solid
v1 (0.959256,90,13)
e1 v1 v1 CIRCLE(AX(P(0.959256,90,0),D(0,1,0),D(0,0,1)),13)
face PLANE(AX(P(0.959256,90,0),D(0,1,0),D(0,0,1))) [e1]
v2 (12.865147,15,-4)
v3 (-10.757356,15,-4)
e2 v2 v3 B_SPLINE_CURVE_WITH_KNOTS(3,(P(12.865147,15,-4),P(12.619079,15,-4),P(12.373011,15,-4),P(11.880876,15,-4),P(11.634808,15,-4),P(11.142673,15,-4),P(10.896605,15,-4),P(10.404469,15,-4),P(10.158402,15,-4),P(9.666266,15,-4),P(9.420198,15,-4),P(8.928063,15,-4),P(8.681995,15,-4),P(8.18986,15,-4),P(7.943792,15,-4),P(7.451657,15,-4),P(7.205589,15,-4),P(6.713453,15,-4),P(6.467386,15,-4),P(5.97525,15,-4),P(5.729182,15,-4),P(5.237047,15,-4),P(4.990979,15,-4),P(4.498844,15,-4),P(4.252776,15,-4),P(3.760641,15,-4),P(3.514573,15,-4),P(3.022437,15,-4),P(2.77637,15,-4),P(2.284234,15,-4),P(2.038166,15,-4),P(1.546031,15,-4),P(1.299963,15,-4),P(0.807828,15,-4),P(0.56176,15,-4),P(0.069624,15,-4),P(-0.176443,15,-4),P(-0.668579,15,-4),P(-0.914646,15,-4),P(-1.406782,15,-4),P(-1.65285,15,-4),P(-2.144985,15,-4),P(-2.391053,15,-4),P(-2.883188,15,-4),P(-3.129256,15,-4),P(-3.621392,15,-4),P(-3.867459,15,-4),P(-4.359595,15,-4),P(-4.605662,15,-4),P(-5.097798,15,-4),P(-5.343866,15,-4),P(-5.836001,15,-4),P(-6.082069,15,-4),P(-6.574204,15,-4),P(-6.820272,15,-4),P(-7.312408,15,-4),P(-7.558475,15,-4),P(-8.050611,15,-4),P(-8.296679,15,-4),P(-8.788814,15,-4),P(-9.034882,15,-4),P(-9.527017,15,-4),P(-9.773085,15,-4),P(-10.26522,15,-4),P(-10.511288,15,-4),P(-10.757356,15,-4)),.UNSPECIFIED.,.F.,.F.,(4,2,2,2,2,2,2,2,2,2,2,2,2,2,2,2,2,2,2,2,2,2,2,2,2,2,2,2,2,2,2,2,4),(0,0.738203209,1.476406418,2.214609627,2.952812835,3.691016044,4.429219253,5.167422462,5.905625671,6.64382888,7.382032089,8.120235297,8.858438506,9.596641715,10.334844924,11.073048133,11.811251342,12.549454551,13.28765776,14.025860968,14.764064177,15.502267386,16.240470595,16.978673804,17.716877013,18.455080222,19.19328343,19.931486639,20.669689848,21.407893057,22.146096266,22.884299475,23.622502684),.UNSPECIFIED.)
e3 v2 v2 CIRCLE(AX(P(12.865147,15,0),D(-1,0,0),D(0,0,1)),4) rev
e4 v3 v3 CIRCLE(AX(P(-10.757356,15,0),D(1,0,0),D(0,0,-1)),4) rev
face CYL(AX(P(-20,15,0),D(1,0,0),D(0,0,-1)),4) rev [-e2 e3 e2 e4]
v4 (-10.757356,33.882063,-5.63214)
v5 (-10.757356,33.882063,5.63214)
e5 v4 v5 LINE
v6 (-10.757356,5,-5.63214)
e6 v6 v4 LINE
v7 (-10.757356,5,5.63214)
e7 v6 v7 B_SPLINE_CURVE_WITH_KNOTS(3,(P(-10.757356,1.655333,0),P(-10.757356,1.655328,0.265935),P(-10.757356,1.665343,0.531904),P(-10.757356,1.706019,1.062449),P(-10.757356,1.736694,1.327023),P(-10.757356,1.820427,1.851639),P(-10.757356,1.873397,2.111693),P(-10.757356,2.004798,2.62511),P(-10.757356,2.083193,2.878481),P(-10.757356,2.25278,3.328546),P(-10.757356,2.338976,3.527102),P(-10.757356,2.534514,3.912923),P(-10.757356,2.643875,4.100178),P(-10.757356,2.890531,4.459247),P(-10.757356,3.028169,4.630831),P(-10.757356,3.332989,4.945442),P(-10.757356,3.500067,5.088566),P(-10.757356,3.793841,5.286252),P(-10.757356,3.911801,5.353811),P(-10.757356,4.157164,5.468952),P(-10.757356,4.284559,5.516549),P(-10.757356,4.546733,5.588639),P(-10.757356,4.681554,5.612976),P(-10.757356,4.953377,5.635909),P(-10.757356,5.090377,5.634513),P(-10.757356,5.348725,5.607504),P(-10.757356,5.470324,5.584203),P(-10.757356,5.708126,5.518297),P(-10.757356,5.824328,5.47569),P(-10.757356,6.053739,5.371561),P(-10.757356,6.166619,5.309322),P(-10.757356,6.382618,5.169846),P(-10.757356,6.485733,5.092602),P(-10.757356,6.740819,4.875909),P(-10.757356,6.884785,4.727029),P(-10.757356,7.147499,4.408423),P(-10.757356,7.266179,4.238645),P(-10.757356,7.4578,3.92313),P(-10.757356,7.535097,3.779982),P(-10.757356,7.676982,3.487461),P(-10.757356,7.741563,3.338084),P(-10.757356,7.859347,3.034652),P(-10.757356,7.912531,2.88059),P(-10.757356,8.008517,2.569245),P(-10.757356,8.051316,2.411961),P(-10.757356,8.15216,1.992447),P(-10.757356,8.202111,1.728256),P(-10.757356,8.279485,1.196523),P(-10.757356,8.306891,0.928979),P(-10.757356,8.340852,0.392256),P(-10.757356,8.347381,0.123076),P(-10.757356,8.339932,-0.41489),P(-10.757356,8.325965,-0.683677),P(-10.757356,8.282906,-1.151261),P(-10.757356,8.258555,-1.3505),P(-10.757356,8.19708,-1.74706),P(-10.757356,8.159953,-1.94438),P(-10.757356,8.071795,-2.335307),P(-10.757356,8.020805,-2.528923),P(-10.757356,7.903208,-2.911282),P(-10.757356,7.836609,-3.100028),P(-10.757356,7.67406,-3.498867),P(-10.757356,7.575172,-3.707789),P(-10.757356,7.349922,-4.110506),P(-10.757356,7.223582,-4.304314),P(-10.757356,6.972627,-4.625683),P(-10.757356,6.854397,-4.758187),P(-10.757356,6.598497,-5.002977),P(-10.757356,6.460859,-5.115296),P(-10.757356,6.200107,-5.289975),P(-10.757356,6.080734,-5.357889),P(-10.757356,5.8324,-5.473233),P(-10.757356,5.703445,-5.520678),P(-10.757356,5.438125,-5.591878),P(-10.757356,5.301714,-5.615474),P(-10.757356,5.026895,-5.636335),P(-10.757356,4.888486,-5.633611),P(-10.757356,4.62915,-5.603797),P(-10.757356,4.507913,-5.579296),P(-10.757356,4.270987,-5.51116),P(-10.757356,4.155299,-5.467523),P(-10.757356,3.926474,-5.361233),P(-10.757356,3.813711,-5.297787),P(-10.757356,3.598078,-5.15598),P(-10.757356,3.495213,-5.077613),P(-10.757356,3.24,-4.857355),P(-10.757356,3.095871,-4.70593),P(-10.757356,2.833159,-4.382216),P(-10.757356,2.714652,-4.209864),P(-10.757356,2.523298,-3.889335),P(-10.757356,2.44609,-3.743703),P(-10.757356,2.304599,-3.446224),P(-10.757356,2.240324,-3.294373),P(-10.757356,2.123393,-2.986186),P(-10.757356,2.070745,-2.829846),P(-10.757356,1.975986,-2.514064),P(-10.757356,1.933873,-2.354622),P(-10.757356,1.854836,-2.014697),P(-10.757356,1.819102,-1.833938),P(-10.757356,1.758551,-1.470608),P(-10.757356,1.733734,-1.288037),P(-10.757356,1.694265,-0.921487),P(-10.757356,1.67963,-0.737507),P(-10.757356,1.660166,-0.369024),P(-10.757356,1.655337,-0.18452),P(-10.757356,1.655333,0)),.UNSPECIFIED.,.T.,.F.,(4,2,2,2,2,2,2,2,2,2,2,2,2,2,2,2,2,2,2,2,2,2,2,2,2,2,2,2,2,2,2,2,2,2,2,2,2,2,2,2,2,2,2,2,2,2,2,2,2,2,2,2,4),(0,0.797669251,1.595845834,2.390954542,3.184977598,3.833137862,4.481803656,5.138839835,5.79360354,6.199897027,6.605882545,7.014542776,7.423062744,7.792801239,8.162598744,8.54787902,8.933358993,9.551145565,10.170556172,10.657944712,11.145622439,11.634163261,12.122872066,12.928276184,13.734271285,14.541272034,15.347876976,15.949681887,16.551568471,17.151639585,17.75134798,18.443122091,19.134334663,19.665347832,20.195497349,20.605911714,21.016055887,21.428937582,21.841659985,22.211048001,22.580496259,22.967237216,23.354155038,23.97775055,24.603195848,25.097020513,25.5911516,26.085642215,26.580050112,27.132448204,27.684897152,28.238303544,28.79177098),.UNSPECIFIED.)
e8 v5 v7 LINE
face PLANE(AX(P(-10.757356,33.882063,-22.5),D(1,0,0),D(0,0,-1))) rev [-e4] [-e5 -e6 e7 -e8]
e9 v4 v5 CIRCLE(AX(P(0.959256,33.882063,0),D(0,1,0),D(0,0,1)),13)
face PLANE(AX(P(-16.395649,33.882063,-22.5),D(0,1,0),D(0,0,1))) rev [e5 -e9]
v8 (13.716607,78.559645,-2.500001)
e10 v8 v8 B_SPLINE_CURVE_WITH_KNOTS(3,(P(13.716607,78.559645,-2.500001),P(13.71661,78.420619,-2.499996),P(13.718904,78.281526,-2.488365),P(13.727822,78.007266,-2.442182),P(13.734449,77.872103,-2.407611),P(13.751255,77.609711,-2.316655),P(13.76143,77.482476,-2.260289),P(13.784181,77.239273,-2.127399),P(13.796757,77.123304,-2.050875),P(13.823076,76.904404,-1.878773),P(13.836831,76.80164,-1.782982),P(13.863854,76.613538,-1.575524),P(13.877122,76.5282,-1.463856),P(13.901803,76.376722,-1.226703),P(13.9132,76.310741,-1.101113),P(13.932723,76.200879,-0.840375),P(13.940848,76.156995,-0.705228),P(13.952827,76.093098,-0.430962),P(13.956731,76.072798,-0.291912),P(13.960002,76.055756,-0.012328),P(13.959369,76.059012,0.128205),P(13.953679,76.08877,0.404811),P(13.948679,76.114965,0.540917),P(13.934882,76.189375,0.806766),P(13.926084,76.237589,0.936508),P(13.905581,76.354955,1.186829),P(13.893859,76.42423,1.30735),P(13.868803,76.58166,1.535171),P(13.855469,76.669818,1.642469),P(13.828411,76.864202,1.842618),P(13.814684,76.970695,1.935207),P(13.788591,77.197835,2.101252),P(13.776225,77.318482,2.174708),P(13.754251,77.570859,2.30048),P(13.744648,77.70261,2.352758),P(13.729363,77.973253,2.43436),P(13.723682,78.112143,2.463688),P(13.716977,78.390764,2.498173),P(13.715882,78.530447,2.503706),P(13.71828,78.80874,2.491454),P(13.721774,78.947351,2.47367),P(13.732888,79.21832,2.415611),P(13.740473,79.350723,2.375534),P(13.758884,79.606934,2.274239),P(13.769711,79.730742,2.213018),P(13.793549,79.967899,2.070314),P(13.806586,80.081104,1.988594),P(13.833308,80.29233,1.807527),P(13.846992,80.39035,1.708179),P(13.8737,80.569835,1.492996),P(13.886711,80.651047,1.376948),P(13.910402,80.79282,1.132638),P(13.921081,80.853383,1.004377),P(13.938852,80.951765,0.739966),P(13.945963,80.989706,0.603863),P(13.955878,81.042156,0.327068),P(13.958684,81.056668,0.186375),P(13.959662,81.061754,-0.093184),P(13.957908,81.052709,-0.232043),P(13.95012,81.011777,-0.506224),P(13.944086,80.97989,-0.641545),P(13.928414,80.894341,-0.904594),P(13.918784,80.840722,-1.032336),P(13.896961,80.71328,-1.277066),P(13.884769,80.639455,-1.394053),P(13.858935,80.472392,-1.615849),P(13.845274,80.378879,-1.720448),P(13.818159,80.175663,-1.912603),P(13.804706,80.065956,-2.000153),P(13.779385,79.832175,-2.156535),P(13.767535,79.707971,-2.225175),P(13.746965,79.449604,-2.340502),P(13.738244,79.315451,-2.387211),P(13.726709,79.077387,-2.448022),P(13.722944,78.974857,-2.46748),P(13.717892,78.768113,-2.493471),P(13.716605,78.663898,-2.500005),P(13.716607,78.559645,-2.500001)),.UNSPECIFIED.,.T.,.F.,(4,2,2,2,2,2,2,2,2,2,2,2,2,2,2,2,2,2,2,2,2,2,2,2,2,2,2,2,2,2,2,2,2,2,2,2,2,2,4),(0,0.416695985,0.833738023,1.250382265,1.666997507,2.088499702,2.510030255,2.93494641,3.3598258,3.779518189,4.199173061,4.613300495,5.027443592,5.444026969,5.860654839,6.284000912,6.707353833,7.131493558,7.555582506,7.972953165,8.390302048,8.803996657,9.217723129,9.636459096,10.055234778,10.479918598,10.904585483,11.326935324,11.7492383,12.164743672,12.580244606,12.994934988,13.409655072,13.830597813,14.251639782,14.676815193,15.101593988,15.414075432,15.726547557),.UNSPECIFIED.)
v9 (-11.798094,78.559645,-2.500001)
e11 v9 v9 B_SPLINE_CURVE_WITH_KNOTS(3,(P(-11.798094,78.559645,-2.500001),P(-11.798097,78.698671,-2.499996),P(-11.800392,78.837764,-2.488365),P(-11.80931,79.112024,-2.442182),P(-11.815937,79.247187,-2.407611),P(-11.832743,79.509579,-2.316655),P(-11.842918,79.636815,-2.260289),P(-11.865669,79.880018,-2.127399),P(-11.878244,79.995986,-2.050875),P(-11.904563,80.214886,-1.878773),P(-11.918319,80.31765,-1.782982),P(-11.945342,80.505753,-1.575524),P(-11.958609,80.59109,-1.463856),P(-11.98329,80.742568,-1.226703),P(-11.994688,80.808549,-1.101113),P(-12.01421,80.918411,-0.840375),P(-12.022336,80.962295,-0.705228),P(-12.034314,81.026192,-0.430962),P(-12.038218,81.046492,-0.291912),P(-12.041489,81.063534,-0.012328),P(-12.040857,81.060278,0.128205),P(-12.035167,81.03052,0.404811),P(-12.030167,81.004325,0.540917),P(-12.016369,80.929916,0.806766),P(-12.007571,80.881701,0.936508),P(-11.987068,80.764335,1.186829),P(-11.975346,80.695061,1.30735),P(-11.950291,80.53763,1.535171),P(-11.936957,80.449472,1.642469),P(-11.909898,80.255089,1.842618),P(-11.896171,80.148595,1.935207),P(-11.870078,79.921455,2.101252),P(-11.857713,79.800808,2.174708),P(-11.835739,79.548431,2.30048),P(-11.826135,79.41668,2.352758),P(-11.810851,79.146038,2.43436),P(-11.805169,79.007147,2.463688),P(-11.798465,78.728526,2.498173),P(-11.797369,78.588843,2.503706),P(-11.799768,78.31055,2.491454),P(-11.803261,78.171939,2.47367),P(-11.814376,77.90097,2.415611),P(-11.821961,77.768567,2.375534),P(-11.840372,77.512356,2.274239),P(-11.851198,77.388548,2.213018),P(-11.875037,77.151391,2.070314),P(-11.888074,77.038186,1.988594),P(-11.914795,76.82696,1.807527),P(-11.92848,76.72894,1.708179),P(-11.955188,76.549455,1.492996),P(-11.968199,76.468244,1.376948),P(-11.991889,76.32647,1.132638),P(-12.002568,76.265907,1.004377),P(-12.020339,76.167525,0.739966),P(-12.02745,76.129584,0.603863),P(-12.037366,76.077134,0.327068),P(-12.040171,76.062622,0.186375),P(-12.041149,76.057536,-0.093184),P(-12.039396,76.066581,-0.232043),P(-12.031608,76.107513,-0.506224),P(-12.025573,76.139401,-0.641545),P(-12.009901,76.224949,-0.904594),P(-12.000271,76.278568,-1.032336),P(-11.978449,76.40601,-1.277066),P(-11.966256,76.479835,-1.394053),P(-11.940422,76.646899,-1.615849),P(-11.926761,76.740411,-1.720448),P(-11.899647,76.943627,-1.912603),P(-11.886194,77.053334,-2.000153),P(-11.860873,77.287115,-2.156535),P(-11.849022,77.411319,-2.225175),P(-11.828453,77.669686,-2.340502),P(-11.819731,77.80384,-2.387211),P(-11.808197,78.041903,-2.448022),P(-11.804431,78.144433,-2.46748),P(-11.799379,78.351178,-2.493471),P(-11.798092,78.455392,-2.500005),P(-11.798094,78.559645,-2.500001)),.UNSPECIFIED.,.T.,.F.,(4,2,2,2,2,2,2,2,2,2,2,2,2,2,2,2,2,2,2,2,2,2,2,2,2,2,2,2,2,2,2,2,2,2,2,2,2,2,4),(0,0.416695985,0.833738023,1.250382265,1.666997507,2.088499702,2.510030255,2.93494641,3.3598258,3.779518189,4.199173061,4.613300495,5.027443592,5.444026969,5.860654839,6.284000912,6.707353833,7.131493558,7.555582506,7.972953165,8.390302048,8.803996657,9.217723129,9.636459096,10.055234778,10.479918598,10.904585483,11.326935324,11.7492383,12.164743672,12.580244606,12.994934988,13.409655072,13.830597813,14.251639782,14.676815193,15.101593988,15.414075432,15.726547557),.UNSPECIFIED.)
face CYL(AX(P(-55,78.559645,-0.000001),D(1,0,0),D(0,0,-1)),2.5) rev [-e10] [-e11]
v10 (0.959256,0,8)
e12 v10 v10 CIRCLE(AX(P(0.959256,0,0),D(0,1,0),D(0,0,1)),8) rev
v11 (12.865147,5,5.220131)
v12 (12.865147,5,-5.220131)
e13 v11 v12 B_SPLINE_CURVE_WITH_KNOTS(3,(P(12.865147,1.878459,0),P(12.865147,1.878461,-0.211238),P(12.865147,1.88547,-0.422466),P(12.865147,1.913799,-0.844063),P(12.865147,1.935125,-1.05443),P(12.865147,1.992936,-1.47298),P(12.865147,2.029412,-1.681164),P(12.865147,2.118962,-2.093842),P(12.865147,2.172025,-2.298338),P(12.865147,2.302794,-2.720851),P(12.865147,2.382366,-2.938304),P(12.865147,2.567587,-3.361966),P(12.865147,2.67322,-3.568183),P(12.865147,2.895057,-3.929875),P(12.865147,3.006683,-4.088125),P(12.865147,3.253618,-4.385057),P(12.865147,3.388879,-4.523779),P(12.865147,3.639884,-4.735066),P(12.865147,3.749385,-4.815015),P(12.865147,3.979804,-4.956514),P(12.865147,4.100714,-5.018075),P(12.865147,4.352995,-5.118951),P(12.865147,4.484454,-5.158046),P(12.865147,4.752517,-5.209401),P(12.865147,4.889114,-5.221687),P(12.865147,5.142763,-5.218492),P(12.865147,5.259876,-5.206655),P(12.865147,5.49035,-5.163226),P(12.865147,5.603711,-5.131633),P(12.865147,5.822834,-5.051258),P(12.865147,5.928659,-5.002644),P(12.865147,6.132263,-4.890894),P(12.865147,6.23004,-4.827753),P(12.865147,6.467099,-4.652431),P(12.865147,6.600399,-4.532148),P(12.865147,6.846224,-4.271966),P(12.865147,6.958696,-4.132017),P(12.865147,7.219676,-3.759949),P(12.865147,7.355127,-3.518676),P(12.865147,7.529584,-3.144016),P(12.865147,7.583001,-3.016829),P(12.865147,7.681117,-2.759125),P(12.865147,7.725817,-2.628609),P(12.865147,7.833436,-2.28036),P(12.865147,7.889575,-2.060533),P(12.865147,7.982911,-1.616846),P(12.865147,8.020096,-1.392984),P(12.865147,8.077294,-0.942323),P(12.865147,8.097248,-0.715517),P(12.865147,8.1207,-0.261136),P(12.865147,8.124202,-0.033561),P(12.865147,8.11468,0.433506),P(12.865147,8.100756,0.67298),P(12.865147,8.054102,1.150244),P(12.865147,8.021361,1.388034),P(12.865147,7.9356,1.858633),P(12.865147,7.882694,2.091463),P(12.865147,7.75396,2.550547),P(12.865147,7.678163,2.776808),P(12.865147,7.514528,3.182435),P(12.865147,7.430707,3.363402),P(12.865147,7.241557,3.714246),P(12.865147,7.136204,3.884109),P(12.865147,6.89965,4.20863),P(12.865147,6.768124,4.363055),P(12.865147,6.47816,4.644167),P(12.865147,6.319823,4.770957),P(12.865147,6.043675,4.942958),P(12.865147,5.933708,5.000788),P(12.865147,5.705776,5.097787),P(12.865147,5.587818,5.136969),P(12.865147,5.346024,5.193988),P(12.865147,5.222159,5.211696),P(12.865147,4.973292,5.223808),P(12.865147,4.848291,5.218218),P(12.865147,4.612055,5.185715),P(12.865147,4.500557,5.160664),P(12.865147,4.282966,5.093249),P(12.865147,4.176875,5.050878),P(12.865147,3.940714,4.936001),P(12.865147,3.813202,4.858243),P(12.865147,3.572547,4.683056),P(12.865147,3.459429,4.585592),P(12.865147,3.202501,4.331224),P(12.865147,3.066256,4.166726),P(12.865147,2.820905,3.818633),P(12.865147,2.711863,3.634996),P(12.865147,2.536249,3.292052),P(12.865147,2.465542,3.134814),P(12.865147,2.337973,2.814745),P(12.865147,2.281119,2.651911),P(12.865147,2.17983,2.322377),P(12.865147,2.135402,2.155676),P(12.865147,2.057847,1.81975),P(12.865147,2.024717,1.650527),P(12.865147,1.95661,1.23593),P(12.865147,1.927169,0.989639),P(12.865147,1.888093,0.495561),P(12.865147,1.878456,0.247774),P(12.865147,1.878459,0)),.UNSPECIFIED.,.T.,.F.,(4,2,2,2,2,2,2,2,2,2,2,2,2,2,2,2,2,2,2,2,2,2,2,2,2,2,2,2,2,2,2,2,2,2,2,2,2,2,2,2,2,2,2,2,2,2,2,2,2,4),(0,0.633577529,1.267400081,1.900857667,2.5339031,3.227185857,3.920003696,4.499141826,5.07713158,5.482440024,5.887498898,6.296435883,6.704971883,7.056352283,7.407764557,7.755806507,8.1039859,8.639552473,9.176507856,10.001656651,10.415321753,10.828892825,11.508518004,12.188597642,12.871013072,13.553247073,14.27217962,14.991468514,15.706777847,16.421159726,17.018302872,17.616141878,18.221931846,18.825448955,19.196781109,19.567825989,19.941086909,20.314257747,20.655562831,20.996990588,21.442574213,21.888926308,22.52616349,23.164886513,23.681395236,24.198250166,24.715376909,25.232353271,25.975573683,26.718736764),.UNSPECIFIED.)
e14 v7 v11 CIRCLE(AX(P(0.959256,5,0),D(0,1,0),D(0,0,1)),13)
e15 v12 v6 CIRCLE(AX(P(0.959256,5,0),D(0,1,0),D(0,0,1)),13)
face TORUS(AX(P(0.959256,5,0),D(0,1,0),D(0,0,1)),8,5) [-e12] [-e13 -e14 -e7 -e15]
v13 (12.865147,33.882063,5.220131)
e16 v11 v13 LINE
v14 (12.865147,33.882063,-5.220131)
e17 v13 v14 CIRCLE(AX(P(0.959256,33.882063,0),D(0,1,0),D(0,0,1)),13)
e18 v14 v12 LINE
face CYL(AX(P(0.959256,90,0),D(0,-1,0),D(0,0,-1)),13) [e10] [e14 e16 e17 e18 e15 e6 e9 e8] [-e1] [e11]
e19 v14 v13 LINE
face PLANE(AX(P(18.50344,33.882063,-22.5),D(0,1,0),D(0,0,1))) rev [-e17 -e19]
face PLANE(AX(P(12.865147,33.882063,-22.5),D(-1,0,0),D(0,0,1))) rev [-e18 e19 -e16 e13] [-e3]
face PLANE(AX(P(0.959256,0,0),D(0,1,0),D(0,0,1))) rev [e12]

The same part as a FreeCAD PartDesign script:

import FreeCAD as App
import Part
import Sketcher
Q = App.Units.Quantity


def edges_at(feature, points):
    """Names of the edges that pass closest to the given points."""
    edges = feature.Shape.Edges
    near = lambda p: min(range(len(edges)), key=lambda i: edges[i].distToShape(Part.Vertex(*p))[0])
    return sorted({f"Edge{near(p) + 1}" for p in points})

doc = App.newDocument("Part")
body = doc.addObject("PartDesign::Body", "Body")

sketch1 = body.newObject("Sketcher::SketchObject", "Sketch")
sketch1.AttachmentSupport = (doc.getObject("XZ_Plane"), [""])
sketch1.MapMode = "FlatFace"
sketch1.addGeometry(Part.Circle(App.Vector(1, 0, 0), App.Vector(0, 0, 1), 13), False)
sketch1.addConstraint([
    Sketcher.Constraint("PointOnObject", 0, 3, -1),
    Sketcher.Constraint("Diameter", 0, Q("26 mm")),
    Sketcher.Constraint("DistanceX", -1, 1, 0, 3, Q("0.959256 mm")),
])
pad1 = body.newObject("PartDesign::Pad", "Pad")
pad1.Profile = sketch1
pad1.Length = 90
pad1.Reversed = True
doc.recompute()

fillet = body.newObject("PartDesign::Fillet", "Fillet")
fillet.Base = (pad1, edges_at(pad1, [(0.959, 0, 13)]))
fillet.Radius = 5

sketch2 = body.newObject("Sketcher::SketchObject", "Sketch001")
sketch2.AttachmentSupport = (doc.getObject("YZ_Plane"), [""])
sketch2.MapMode = "FlatFace"
sketch2.addGeometry(Part.Circle(App.Vector(15, 0, 0), App.Vector(0, 0, 1), 4), False)
sketch2.addConstraint([
    Sketcher.Constraint("PointOnObject", 0, 3, -1),
    Sketcher.Constraint("Diameter", 0, Q("8 mm")),
    Sketcher.Constraint("DistanceX", -1, 1, 0, 3, Q("15 mm")),
])
pocket1 = body.newObject("PartDesign::Pocket", "Pocket")
pocket1.Profile = sketch2
pocket1.Length = 40
pocket1.Midplane = True

sketch3 = body.newObject("Sketcher::SketchObject", "Sketch002")
sketch3.AttachmentSupport = (doc.getObject("XY_Plane"), [""])
sketch3.MapMode = "FlatFace"
sketch3.addGeometry([
    Part.LineSegment(App.Vector(-16, 34, 0), App.Vector(-16, -1, 0)),
    Part.LineSegment(App.Vector(-16, -1, 0), App.Vector(-11, -1, 0)),
    Part.LineSegment(App.Vector(-11, -1, 0), App.Vector(-11, 34, 0)),
    Part.LineSegment(App.Vector(-11, 34, 0), App.Vector(-16, 34, 0)),
    Part.LineSegment(App.Vector(13, 34, 0), App.Vector(13, -1, 0)),
    Part.LineSegment(App.Vector(13, -1, 0), App.Vector(19, -1, 0)),
    Part.LineSegment(App.Vector(19, -1, 0), App.Vector(19, 34, 0)),
    Part.LineSegment(App.Vector(19, 34, 0), App.Vector(13, 34, 0)),
], False)
sketch3.addConstraint([
    Sketcher.Constraint("Coincident", 0, 2, 1, 1),
    Sketcher.Constraint("Coincident", 1, 2, 2, 1),
    Sketcher.Constraint("Coincident", 2, 2, 3, 1),
    Sketcher.Constraint("Coincident", 3, 2, 0, 1),
    Sketcher.Constraint("Coincident", 4, 2, 5, 1),
    Sketcher.Constraint("Coincident", 5, 2, 6, 1),
    Sketcher.Constraint("Coincident", 6, 2, 7, 1),
    Sketcher.Constraint("Coincident", 7, 2, 4, 1),
    Sketcher.Constraint("Vertical", 0),
    Sketcher.Constraint("Horizontal", 1),
    Sketcher.Constraint("Vertical", 2),
    Sketcher.Constraint("Horizontal", 3),
    Sketcher.Constraint("Vertical", 4),
    Sketcher.Constraint("Horizontal", 5),
    Sketcher.Constraint("Vertical", 6),
    Sketcher.Constraint("Horizontal", 7),
    Sketcher.Constraint("Horizontal", 1, 2, 4, 2),
    Sketcher.Constraint("Horizontal", 3, 2, 6, 2),
    Sketcher.Constraint("Equal", 3, 5),
    Sketcher.Constraint("DistanceX", 1, 1, 1, 2, Q("5.638293 mm")),
    Sketcher.Constraint("DistanceY", 0, 2, 0, 1, Q("34.801876 mm")),
    Sketcher.Constraint("DistanceX", 0, 2, -1, 1, Q("16.395649 mm")),
    Sketcher.Constraint("DistanceX", -1, 1, 5, 2, Q("18.50344 mm")),
    Sketcher.Constraint("DistanceY", 0, 2, -1, 1, Q("0.919814 mm")),
])
pocket2 = body.newObject("PartDesign::Pocket", "Pocket001")
pocket2.Profile = sketch3
pocket2.Length = 45
pocket2.Midplane = True

sketch4 = body.newObject("Sketcher::SketchObject", "Sketch003")
sketch4.AttachmentSupport = (doc.getObject("YZ_Plane"), [""])
sketch4.MapMode = "FlatFace"
sketch4.addGeometry(Part.Circle(App.Vector(78.6, 0, 0), App.Vector(0, 0, 1), 2.5), False)
sketch4.addConstraint([
    Sketcher.Constraint("PointOnObject", 0, 3, -1),
    Sketcher.Constraint("Diameter", 0, Q("5 mm")),
    Sketcher.Constraint("DistanceX", -1, 1, 0, 3, Q("78.559645 mm")),
])
pocket3 = body.newObject("PartDesign::Pocket", "Pocket002")
pocket3.Profile = sketch4
pocket3.Length = 110
pocket3.Midplane = True

doc.recompute()
